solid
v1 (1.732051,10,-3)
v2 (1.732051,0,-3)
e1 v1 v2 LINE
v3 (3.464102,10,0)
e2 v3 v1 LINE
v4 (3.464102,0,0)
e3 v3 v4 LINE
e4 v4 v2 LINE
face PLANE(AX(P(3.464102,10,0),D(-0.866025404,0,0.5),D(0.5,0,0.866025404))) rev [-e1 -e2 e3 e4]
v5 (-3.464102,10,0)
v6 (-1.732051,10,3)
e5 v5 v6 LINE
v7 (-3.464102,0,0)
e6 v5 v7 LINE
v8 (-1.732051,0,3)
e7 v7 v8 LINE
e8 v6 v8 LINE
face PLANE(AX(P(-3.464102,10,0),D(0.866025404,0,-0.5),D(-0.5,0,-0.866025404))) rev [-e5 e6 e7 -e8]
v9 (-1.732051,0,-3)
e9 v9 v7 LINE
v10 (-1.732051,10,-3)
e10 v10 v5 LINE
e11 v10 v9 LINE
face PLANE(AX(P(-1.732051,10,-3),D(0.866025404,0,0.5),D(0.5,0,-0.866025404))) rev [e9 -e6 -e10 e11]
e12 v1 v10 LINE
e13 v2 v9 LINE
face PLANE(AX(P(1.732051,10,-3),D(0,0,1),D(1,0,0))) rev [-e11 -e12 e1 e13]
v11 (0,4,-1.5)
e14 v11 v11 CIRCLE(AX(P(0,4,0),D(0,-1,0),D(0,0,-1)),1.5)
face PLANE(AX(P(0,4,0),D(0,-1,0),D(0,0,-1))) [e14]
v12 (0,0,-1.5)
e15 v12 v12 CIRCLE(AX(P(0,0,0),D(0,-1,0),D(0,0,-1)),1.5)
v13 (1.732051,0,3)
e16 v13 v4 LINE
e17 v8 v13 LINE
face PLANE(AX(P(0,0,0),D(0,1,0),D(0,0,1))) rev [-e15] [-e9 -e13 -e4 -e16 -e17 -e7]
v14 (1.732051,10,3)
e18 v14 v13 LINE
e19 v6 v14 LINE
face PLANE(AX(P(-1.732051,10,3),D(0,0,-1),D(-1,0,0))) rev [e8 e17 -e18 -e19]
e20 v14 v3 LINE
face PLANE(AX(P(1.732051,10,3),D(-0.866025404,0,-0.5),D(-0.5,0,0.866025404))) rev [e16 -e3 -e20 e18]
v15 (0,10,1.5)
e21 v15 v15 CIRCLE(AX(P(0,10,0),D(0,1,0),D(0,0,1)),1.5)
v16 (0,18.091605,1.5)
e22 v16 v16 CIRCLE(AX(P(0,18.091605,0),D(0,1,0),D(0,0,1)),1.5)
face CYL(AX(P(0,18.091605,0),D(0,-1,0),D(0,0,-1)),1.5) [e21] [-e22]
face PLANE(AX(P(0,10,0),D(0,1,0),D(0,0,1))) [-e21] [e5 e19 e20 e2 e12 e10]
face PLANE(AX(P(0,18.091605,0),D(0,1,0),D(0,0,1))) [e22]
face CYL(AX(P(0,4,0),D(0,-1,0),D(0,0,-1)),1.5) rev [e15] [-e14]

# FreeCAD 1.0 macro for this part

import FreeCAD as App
import Part
import Sketcher
Q = App.Units.Quantity

doc = App.newDocument("Part")
params = doc.addObject("Spreadsheet::Sheet", "Params")
for row, (alias, value) in enumerate([
    ("pad1_length", "10 mm"),
    ("sketch2_diameter", "3 mm"),
    ("pad2_length", "8.091605 mm"),
    ("sketch3_diameter", "3 mm"),
    ("pocket1_length", "4 mm"),
], start=1):
    params.set(f"A{row}", alias)
    params.set(f"B{row}", "=" + value)
    params.setAlias(f"B{row}", alias)

body = doc.addObject("PartDesign::Body", "Body")

# Sketch on XZ plane
sketch1 = body.newObject("Sketcher::SketchObject", "Sketch")
sketch1.AttachmentSupport = (doc.getObject("XZ_Plane"), [""])
sketch1.MapMode = "FlatFace"
sketch1.addGeometry([
    Part.LineSegment(App.Vector(-3.464102, 0, 0), App.Vector(-1.732051, 3, 0)),  # 0
    Part.LineSegment(App.Vector(-1.732051, 3, 0), App.Vector(1.732051, 3, 0)),  # 1
    Part.LineSegment(App.Vector(1.732051, 3, 0), App.Vector(3.464102, 0, 0)),  # 2
    Part.LineSegment(App.Vector(3.464102, 0, 0), App.Vector(1.732051, -3, 0)),  # 3
    Part.LineSegment(App.Vector(1.732051, -3, 0), App.Vector(-1.732051, -3, 0)),  # 4
    Part.LineSegment(App.Vector(-1.732051, -3, 0), App.Vector(-3.464102, 0, 0)),  # 5
], False)
sketch1.addConstraint([
    Sketcher.Constraint("Coincident", 0, 2, 1, 1),
    Sketcher.Constraint("Coincident", 1, 2, 2, 1),
    Sketcher.Constraint("Coincident", 2, 2, 3, 1),
    Sketcher.Constraint("Coincident", 3, 2, 4, 1),
    Sketcher.Constraint("Coincident", 4, 2, 5, 1),
    Sketcher.Constraint("Coincident", 5, 2, 0, 1),
    Sketcher.Constraint("Horizontal", 1),
    Sketcher.Constraint("Horizontal", 4),
    Sketcher.Constraint("Symmetric", 0, 2, 3, 2, -1, 1),
    Sketcher.Constraint("Symmetric", 2, 2, 5, 2, -1, 1),
    Sketcher.Constraint("PointOnObject", 2, 2, -1),
    Sketcher.Constraint("Parallel", 2, 5),
    Sketcher.Constraint("Vertical", 1, 2, 3, 2),
    Sketcher.Constraint("Angle", 0, Q("60 deg")),
    Sketcher.Constraint("DistanceY", -1, 1, 0, 2, 3.0),
    Sketcher.Constraint("DistanceX", 1, 1, 1, 2, 3.464102),
])
pad1 = body.newObject("PartDesign::Pad", "Pad")
pad1.Profile = sketch1
pad1.setExpression("Length", "Params.pad1_length")
pad1.Reversed = True

# Sketch on XZ plane
sketch2 = body.newObject("Sketcher::SketchObject", "Sketch001")
sketch2.AttachmentSupport = (doc.getObject("XZ_Plane"), [""])
sketch2.MapMode = "FlatFace"
sketch2.AttachmentOffset = App.Placement(App.Vector(0, 0, -10), App.Rotation())
sketch2.addGeometry(Part.Circle(App.Vector(0, 0, 0), App.Vector(0, 0, 1), 1.5), False)
sketch2.addConstraint([
    Sketcher.Constraint("Coincident", 0, 3, -1, 1),
    Sketcher.Constraint("Diameter", 0, 3.0),
])
sketch2.setExpression("Constraints[1]", "Params.sketch2_diameter")
pad2 = body.newObject("PartDesign::Pad", "Pad001")
pad2.Profile = sketch2
pad2.setExpression("Length", "Params.pad2_length")
pad2.Reversed = True

# Sketch on XZ plane
sketch3 = body.newObject("Sketcher::SketchObject", "Sketch002")
sketch3.AttachmentSupport = (doc.getObject("XZ_Plane"), [""])
sketch3.MapMode = "FlatFace"
sketch3.addGeometry(Part.Circle(App.Vector(0, 0, 0), App.Vector(0, 0, 1), 1.5), False)
sketch3.addConstraint([
    Sketcher.Constraint("Coincident", 0, 3, -1, 1),
    Sketcher.Constraint("Diameter", 0, 3.0),
])
sketch3.setExpression("Constraints[1]", "Params.sketch3_diameter")
pocket1 = body.newObject("PartDesign::Pocket", "Pocket")
pocket1.Profile = sketch3
pocket1.setExpression("Length", "Params.pocket1_length")

doc.recompute()
